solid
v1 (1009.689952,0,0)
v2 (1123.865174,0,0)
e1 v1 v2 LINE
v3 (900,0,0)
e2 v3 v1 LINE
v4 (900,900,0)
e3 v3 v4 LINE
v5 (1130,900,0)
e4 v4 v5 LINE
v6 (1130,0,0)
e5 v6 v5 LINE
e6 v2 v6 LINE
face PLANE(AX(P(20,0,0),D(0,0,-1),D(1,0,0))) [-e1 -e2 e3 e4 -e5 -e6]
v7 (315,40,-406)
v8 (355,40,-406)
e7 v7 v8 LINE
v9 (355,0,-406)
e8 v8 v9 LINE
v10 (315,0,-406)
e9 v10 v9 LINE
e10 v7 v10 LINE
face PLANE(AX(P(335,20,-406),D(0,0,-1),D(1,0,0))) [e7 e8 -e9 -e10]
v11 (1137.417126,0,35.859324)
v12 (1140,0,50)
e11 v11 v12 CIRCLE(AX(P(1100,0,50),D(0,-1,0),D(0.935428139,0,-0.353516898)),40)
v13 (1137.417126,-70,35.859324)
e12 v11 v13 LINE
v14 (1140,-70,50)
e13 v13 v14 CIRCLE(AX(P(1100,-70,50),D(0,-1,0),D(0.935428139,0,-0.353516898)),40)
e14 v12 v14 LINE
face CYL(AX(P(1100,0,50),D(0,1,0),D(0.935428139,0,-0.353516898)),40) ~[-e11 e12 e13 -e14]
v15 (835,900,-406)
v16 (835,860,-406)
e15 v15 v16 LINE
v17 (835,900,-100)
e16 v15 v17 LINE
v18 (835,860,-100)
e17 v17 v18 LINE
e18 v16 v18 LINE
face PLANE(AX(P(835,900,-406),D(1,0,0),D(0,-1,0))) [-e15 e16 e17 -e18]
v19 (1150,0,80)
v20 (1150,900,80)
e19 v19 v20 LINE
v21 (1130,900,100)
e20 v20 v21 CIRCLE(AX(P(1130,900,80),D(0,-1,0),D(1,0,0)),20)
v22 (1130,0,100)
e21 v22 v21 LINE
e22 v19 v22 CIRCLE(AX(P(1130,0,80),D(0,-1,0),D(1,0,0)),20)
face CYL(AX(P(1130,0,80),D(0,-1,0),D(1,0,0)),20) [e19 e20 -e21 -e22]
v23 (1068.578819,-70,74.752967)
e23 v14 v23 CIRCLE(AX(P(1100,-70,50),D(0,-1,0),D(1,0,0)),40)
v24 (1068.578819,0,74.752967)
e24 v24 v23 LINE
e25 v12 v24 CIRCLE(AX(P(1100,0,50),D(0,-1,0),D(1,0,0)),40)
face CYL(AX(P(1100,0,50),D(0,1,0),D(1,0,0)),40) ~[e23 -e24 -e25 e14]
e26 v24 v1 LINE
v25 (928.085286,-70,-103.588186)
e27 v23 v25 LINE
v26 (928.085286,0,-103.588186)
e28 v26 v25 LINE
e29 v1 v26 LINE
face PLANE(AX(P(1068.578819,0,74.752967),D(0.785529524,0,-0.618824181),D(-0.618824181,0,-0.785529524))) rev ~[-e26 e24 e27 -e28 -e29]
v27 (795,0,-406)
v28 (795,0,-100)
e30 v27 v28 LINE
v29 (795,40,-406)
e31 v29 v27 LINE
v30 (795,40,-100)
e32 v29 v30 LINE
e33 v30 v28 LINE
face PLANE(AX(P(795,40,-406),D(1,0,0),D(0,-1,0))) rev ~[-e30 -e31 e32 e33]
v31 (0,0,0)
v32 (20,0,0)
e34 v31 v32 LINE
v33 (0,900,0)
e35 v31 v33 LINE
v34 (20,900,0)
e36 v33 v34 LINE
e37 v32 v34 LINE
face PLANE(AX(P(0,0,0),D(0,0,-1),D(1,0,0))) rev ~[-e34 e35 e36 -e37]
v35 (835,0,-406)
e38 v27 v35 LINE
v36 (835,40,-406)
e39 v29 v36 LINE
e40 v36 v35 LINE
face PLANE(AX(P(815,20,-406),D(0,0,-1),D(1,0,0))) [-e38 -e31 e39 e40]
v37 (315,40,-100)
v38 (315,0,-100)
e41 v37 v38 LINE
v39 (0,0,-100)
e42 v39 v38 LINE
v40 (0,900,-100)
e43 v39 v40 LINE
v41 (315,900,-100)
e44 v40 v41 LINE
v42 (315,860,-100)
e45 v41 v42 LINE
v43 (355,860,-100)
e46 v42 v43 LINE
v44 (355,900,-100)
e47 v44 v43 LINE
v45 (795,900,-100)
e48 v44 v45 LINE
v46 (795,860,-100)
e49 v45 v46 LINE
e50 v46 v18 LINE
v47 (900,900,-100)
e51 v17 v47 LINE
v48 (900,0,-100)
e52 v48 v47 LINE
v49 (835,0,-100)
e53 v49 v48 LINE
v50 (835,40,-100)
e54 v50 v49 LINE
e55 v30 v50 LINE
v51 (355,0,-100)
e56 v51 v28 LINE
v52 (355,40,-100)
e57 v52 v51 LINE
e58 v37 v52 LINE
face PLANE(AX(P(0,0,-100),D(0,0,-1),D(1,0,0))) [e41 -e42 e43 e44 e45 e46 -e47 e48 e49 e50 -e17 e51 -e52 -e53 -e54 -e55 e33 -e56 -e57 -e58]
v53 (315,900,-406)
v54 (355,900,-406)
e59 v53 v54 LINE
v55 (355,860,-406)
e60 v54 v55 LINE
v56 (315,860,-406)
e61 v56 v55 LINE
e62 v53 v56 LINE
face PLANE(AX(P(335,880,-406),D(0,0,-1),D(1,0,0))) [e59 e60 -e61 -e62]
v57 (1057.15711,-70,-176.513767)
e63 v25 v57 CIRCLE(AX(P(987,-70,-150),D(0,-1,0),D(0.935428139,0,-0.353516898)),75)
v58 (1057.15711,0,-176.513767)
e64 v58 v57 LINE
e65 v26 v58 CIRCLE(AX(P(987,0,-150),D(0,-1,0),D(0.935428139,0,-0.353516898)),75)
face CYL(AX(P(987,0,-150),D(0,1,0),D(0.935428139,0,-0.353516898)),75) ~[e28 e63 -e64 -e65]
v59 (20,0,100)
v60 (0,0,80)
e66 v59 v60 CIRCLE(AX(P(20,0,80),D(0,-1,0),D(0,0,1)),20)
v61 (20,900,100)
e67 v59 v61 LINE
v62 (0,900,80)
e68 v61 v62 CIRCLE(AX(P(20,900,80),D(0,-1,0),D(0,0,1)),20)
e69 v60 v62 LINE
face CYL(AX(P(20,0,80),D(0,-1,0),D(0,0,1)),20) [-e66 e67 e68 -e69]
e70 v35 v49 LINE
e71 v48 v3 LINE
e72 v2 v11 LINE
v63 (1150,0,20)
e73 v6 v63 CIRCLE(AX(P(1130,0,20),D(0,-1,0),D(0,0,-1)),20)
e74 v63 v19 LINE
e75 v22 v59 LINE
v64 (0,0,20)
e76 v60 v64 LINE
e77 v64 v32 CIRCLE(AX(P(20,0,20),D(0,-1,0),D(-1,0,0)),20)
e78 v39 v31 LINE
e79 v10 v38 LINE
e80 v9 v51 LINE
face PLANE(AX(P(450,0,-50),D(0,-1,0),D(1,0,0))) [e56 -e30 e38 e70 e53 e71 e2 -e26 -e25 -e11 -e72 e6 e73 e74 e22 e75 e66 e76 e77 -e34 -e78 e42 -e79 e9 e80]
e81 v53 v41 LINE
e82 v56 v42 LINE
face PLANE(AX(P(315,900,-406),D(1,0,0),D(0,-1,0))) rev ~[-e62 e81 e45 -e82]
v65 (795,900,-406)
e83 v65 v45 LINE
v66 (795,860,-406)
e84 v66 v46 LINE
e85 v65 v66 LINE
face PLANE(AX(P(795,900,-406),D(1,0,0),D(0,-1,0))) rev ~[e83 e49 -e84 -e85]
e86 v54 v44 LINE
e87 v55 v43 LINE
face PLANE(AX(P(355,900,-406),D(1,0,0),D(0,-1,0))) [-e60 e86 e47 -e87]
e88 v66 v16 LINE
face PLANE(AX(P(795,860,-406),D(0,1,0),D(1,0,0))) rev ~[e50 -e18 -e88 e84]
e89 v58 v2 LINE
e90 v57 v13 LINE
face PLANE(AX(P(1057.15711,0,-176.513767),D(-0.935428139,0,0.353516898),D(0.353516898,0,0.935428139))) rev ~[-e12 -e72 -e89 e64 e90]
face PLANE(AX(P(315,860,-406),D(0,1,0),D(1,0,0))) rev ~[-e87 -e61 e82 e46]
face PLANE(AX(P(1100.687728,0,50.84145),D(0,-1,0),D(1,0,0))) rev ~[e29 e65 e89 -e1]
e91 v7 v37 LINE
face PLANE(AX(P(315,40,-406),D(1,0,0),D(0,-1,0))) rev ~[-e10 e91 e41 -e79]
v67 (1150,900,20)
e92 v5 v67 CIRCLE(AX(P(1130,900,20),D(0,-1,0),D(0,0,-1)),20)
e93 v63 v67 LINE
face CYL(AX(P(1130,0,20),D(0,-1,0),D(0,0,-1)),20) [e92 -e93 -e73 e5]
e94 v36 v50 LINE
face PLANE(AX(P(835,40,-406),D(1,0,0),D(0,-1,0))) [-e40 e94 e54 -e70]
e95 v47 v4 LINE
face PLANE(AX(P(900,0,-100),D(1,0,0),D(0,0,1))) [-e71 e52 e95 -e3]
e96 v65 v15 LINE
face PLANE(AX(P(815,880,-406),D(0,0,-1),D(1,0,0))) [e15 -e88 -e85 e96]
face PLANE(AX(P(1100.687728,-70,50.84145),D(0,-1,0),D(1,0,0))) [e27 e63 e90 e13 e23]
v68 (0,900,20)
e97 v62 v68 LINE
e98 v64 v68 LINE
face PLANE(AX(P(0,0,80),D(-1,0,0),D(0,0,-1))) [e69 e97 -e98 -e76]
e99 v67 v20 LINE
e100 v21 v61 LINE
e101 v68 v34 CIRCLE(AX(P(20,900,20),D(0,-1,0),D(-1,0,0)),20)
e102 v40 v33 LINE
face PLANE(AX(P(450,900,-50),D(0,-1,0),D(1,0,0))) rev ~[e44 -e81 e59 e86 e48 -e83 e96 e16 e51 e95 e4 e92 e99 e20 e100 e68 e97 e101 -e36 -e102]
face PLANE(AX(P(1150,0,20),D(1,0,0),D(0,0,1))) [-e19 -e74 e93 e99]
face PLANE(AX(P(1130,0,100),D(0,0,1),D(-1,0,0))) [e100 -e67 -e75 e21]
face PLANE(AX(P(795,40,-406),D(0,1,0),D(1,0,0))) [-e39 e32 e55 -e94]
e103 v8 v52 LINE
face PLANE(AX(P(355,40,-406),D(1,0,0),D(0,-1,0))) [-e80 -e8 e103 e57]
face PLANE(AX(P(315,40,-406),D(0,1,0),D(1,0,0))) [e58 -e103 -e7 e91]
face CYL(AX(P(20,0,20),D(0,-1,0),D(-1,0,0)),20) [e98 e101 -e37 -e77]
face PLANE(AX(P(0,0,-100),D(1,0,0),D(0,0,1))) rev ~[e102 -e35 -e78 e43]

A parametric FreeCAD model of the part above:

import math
import FreeCAD as App
import Part
import Sketcher
from FreeCAD import Vector


def add_polygon(sketch, points):
    """Adds a closed chain of lines whose ends are joined by coincident constraints."""
    first, n = sketch.GeometryCount, len(points)
    for a, b in zip(points, points[1:] + points[:1]):
        sketch.addGeometry(Part.LineSegment(App.Vector(*a, 0), App.Vector(*b, 0)), False)
    for i in range(n):
        sketch.addConstraint(Sketcher.Constraint("Coincident", first + i, 2, first + (i + 1) % n, 1))

doc = App.newDocument("Part")
body = doc.addObject("PartDesign::Body", "Body")

sketch1 = doc.addObject("Sketcher::SketchObject", "Sketch")
body.addObject(sketch1)
sketch1.AttachmentSupport = (doc.XZ_Plane, [""])
sketch1.MapMode = "FlatFace"
sketch1.addGeometry([
    Part.ArcOfCircle(Part.Circle(Vector(20, 20, 0), Vector(0, 0, 1), 20), math.radians(180), math.radians(270)),
    Part.LineSegment(Vector(20, 0, 0), Vector(1130, 0, 0)),
    Part.ArcOfCircle(Part.Circle(Vector(1130, 20, 0), Vector(0, 0, 1), 20), math.radians(-90), math.radians(0)),
    Part.LineSegment(Vector(1150, 20, 0), Vector(1150, 80, 0)),
    Part.ArcOfCircle(Part.Circle(Vector(1130, 80, 0), Vector(0, 0, 1), 20), math.radians(0), math.radians(90)),
    Part.LineSegment(Vector(1130, 100, 0), Vector(20, 100, 0)),
    Part.ArcOfCircle(Part.Circle(Vector(20, 80, 0), Vector(0, 0, 1), 20), math.radians(90), math.radians(180)),
    Part.LineSegment(Vector(0, 80, 0), Vector(0, 20, 0)),
], False)
sketch1.addConstraint([
    Sketcher.Constraint("Tangent", 0, 2, 1, 1),
    Sketcher.Constraint("Tangent", 1, 2, 2, 1),
    Sketcher.Constraint("Tangent", 2, 2, 3, 1),
    Sketcher.Constraint("Tangent", 3, 2, 4, 1),
    Sketcher.Constraint("Tangent", 4, 2, 5, 1),
    Sketcher.Constraint("Tangent", 5, 2, 6, 1),
    Sketcher.Constraint("Tangent", 6, 2, 7, 1),
    Sketcher.Constraint("Tangent", 7, 2, 0, 1),
    Sketcher.Constraint("Horizontal", 1),
    Sketcher.Constraint("Vertical", 3),
    Sketcher.Constraint("Horizontal", 5),
    Sketcher.Constraint("Vertical", 7),
    Sketcher.Constraint("Equal", 0, 2),
    Sketcher.Constraint("Equal", 2, 4),
    Sketcher.Constraint("Equal", 4, 6),
    Sketcher.Constraint("PointOnObject", 0, 2, -1),
    Sketcher.Constraint("PointOnObject", 6, 2, -2),
    Sketcher.Constraint("Radius", 0, 20.0),
    Sketcher.Constraint("DistanceX", 1, 1, 1, 2, 1110.0),
    Sketcher.Constraint("DistanceY", 3, 1, 3, 2, 60.0),
])
pad1 = doc.addObject("PartDesign::Pad", "Pad")
body.addObject(pad1)
pad1.Profile = sketch1
pad1.Length = 900
pad1.Reversed = True

sketch2 = doc.addObject("Sketcher::SketchObject", "Sketch001")
body.addObject(sketch2)
sketch2.AttachmentSupport = (doc.XZ_Plane, [""])
sketch2.MapMode = "FlatFace"
add_polygon(sketch2, [(0, 0), (0, -100), (900, -100), (900, 0)])
sketch2.addConstraint([
    Sketcher.Constraint("Vertical", 0),
    Sketcher.Constraint("Horizontal", 1),
    Sketcher.Constraint("Vertical", 2),
    Sketcher.Constraint("Horizontal", 3),
    Sketcher.Constraint("Coincident", 3, 2, -1, 1),
    Sketcher.Constraint("DistanceX", 1, 1, 1, 2, 900.0),
    Sketcher.Constraint("DistanceY", 0, 2, 0, 1, 100.0),
])
pad2 = doc.addObject("PartDesign::Pad", "Pad001")
body.addObject(pad2)
pad2.Profile = sketch2
pad2.Length = 900
pad2.Reversed = True

sketch3 = doc.addObject("Sketcher::SketchObject", "Sketch002")
body.addObject(sketch3)
sketch3.AttachmentSupport = (doc.XZ_Plane, [""])
sketch3.MapMode = "FlatFace"
sketch3.addGeometry([
    Part.ArcOfCircle(Part.Circle(Vector(1100, 50, 0), Vector(0, 0, 1), 40), math.radians(-21), math.radians(0)),
    Part.ArcOfCircle(Part.Circle(Vector(1100, 50, 0), Vector(0, 0, 1), 40), math.radians(0), math.radians(142)),
    Part.LineSegment(Vector(1069, 75, 0), Vector(928, -104, 0)),
    Part.ArcOfCircle(Part.Circle(Vector(987, -150, 0), Vector(0, 0, 1), 75), math.radians(142), math.radians(339)),
    Part.LineSegment(Vector(1057, -177, 0), Vector(1137, 36, 0)),
], False)
sketch3.addConstraint([
    Sketcher.Constraint("Tangent", 0, 2, 1, 1),
    Sketcher.Constraint("Tangent", 1, 2, 2, 1),
    Sketcher.Constraint("Tangent", 2, 2, 3, 1),
    Sketcher.Constraint("Tangent", 3, 2, 4, 1),
    Sketcher.Constraint("Tangent", 4, 2, 0, 1),
    Sketcher.Constraint("Equal", 0, 1),
    Sketcher.Constraint("Horizontal", 1, 3, 0, 2),
    Sketcher.Constraint("Radius", 0, 40.0),
    Sketcher.Constraint("Radius", 3, 75.0),
    Sketcher.Constraint("DistanceX", -1, 1, 0, 3, 1100.0),
    Sketcher.Constraint("DistanceY", -1, 1, 0, 3, 50.0),
    Sketcher.Constraint("DistanceX", -1, 1, 3, 3, 987.0),
    Sketcher.Constraint("DistanceY", 3, 3, -1, 1, 150.0),
])
pad3 = doc.addObject("PartDesign::Pad", "Pad002")
body.addObject(pad3)
pad3.Profile = sketch3
pad3.Length = 70

sketch4 = doc.addObject("Sketcher::SketchObject", "Sketch003")
body.addObject(sketch4)
sketch4.AttachmentSupport = (doc.XY_Plane, [""])
sketch4.MapMode = "FlatFace"
sketch4.AttachmentOffset = App.Placement(Vector(0, 0, -406), App.Rotation())
add_polygon(sketch4, [(315, 0), (315, 40), (355, 40), (355, 0)])
add_polygon(sketch4, [(315, 860), (315, 900), (355, 900), (355, 860)])
add_polygon(sketch4, [(795, 0), (795, 40), (835, 40), (835, 0)])
add_polygon(sketch4, [(795, 860), (795, 900), (835, 900), (835, 860)])
sketch4.addConstraint([
    Sketcher.Constraint("Vertical", 0),
    Sketcher.Constraint("Horizontal", 1),
    Sketcher.Constraint("Vertical", 2),
    Sketcher.Constraint("Horizontal", 3),
    Sketcher.Constraint("Vertical", 4),
    Sketcher.Constraint("Horizontal", 5),
    Sketcher.Constraint("Vertical", 6),
    Sketcher.Constraint("Horizontal", 7),
    Sketcher.Constraint("Vertical", 8),
    Sketcher.Constraint("Horizontal", 9),
    Sketcher.Constraint("Vertical", 10),
    Sketcher.Constraint("Horizontal", 11),
    Sketcher.Constraint("Vertical", 12),
    Sketcher.Constraint("Horizontal", 13),
    Sketcher.Constraint("Vertical", 14),
    Sketcher.Constraint("Horizontal", 15),
    Sketcher.Constraint("PointOnObject", 2, 2, -1),
    Sketcher.Constraint("PointOnObject", 10, 2, -1),
    Sketcher.Constraint("Horizontal", 1, 2, 8, 2),
    Sketcher.Constraint("Horizontal", 5, 2, 12, 2),
    Sketcher.Constraint("Horizontal", 7, 2, 14, 2),
    Sketcher.Constraint("Vertical", 3, 2, 4, 2),
    Sketcher.Constraint("Vertical", 2, 2, 5, 2),
    Sketcher.Constraint("Vertical", 11, 2, 12, 2),
    Sketcher.Constraint("Vertical", 10, 2, 13, 2),
    Sketcher.Constraint("Equal", 7, 9),
    Sketcher.Constraint("Equal", 15, 0),
    Sketcher.Constraint("Equal", 2, 4),
    Sketcher.Constraint("DistanceX", 1, 1, 1, 2, 40.0),
    Sketcher.Constraint("DistanceX", -1, 1, 0, 2, 315.0),
    Sketcher.Constraint("DistanceY", -1, 1, 4, 2, 900.0),
    Sketcher.Constraint("DistanceX", -1, 1, 8, 2, 795.0),
])
pad4 = doc.addObject("PartDesign::Pad", "Pad003")
body.addObject(pad4)
pad4.Profile = sketch4
pad4.Type = "UpToLast"

doc.recompute()
